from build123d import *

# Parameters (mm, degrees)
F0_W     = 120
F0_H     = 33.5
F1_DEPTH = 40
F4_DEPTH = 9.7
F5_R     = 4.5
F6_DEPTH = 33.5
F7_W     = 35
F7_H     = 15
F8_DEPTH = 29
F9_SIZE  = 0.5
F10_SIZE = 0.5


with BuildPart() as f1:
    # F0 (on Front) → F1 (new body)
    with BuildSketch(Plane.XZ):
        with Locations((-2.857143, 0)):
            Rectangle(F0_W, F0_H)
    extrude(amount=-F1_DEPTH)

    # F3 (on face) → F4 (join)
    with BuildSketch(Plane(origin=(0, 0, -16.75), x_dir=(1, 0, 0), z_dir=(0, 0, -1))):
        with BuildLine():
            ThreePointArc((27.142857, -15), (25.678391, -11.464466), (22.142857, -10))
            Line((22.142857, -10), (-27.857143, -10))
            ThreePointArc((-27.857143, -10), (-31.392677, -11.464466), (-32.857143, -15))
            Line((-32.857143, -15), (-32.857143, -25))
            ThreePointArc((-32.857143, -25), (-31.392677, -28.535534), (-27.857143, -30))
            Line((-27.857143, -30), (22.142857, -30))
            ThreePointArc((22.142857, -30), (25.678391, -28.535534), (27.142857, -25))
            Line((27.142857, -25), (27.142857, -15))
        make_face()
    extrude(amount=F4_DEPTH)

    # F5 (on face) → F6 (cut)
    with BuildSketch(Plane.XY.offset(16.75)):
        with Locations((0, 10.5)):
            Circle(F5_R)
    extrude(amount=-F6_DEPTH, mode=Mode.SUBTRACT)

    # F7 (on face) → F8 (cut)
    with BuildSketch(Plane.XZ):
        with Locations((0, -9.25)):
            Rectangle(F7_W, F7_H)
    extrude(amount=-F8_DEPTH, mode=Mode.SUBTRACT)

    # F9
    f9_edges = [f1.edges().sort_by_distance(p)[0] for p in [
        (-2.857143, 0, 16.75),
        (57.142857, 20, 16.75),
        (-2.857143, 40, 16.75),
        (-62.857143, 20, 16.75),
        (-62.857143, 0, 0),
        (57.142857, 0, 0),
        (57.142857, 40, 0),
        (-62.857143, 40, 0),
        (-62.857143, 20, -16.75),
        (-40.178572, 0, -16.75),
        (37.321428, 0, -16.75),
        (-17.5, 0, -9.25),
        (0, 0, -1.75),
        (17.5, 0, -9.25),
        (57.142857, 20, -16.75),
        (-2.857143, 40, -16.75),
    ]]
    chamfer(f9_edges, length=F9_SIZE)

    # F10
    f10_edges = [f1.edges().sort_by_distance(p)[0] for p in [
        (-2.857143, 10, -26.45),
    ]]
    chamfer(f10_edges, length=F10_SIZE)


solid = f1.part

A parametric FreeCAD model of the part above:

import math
import FreeCAD as App
import Part
import Sketcher
from FreeCAD import Vector


def edges_at(feature, points):
    """Names of the edges that pass closest to the given points."""
    edges = feature.Shape.Edges
    near = lambda p: min(range(len(edges)), key=lambda i: edges[i].distToShape(Part.Vertex(*p))[0])
    return sorted({f"Edge{near(p) + 1}" for p in points})

doc = App.newDocument("Part")
body = doc.addObject("PartDesign::Body", "Body")

sketch1 = body.newObject("Sketcher::SketchObject", "Sketch")
sketch1.AttachmentSupport = (doc.getObject("XZ_Plane"), [""])
sketch1.MapMode = "FlatFace"
sketch1.addGeometry([
    Part.LineSegment(Vector(-62.857143, 16.75, 0), Vector(-62.857143, -16.75, 0)),
    Part.LineSegment(Vector(-62.857143, -16.75, 0), Vector(57.142857, -16.75, 0)),
    Part.LineSegment(Vector(57.142857, -16.75, 0), Vector(57.142857, 16.75, 0)),
    Part.LineSegment(Vector(57.142857, 16.75, 0), Vector(-62.857143, 16.75, 0)),
], False)
sketch1.addConstraint([
    Sketcher.Constraint("Coincident", 0, 2, 1, 1),
    Sketcher.Constraint("Coincident", 1, 2, 2, 1),
    Sketcher.Constraint("Coincident", 2, 2, 3, 1),
    Sketcher.Constraint("Coincident", 3, 2, 0, 1),
    Sketcher.Constraint("Vertical", 0),
    Sketcher.Constraint("Horizontal", 1),
    Sketcher.Constraint("Vertical", 2),
    Sketcher.Constraint("Horizontal", 3),
    Sketcher.Constraint("DistanceX", 1, 1, 1, 2, 120.0),
    Sketcher.Constraint("DistanceY", 0, 2, 0, 1, 33.5),
    Sketcher.Constraint("DistanceY", 0, 2, -1, 1, 16.75),
    Sketcher.Constraint("DistanceX", 0, 2, -1, 1, 62.857143),
])
pad1 = body.newObject("PartDesign::Pad", "Pad")
pad1.Profile = sketch1
pad1.Length = 40
pad1.Reversed = True

sketch2 = body.newObject("Sketcher::SketchObject", "Sketch001")
sketch2.AttachmentSupport = (doc.getObject("XY_Plane"), [""])
sketch2.MapMode = "FlatFace"
sketch2.AttachmentOffset = App.Placement(Vector(0, 0, -16.75), App.Rotation())
sketch2.addGeometry([
    Part.ArcOfCircle(Part.Circle(Vector(22.142857, 15, 0), Vector(0, 0, 1), 5), math.radians(-90.000004), math.radians(0.000004)),
    Part.LineSegment(Vector(22.142857, 10, 0), Vector(-27.857143, 10, 0)),
    Part.ArcOfCircle(Part.Circle(Vector(-27.857143, 15, 0), Vector(0, 0, 1), 5), math.radians(179.999996), math.radians(270.000004)),
    Part.LineSegment(Vector(-32.857143, 15, 0), Vector(-32.857143, 25, 0)),
    Part.ArcOfCircle(Part.Circle(Vector(-27.857143, 25, 0), Vector(0, 0, 1), 5), math.radians(89.999996), math.radians(180.000004)),
    Part.LineSegment(Vector(-27.857143, 30, 0), Vector(22.142857, 30, 0)),
    Part.ArcOfCircle(Part.Circle(Vector(22.142857, 25, 0), Vector(0, 0, 1), 5), math.radians(-0.000004), math.radians(90.000004)),
    Part.LineSegment(Vector(27.142857, 25, 0), Vector(27.142857, 15, 0)),
], False)
sketch2.addConstraint([
    Sketcher.Constraint("Tangent", 0, 1, 1, 1),
    Sketcher.Constraint("Tangent", 1, 2, 2, 2),
    Sketcher.Constraint("Tangent", 2, 1, 3, 1),
    Sketcher.Constraint("Tangent", 3, 2, 4, 2),
    Sketcher.Constraint("Tangent", 4, 1, 5, 1),
    Sketcher.Constraint("Tangent", 5, 2, 6, 2),
    Sketcher.Constraint("Tangent", 6, 1, 7, 1),
    Sketcher.Constraint("Tangent", 7, 2, 0, 2),
    Sketcher.Constraint("Horizontal", 1),
    Sketcher.Constraint("Vertical", 3),
    Sketcher.Constraint("Horizontal", 5),
    Sketcher.Constraint("Vertical", 7),
    Sketcher.Constraint("Equal", 0, 2),
    Sketcher.Constraint("Equal", 2, 4),
    Sketcher.Constraint("Equal", 4, 6),
    Sketcher.Constraint("Radius", 0, 5.0),
    Sketcher.Constraint("DistanceX", 1, 2, 1, 1, 50.0),
    Sketcher.Constraint("DistanceY", 3, 1, 3, 2, 10.0),
    Sketcher.Constraint("DistanceY", -1, 1, 0, 3, 15.0),
    Sketcher.Constraint("DistanceX", -1, 1, 0, 3, 22.142857),
])
pad2 = body.newObject("PartDesign::Pad", "Pad001")
pad2.Profile = sketch2
pad2.Length = 9.7
pad2.Reversed = True

sketch3 = body.newObject("Sketcher::SketchObject", "Sketch002")
sketch3.AttachmentSupport = (doc.getObject("XY_Plane"), [""])
sketch3.MapMode = "FlatFace"
sketch3.AttachmentOffset = App.Placement(Vector(0, 0, 16.75), App.Rotation())
sketch3.addGeometry(Part.Circle(Vector(0, 10.5, 0), Vector(0, 0, 1), 4.5), False)
sketch3.addConstraint([
    Sketcher.Constraint("PointOnObject", 0, 3, -2),
    Sketcher.Constraint("Diameter", 0, 9.0),
    Sketcher.Constraint("DistanceY", -1, 1, 0, 3, 10.5),
])
pocket1 = body.newObject("PartDesign::Pocket", "Pocket")
pocket1.Profile = sketch3
pocket1.Length = 33.5

sketch4 = body.newObject("Sketcher::SketchObject", "Sketch003")
sketch4.AttachmentSupport = (doc.getObject("XZ_Plane"), [""])
sketch4.MapMode = "FlatFace"
sketch4.addGeometry([
    Part.LineSegment(Vector(-17.5, -1.75, 0), Vector(-17.5, -16.75, 0)),
    Part.LineSegment(Vector(-17.5, -16.75, 0), Vector(17.5, -16.75, 0)),
    Part.LineSegment(Vector(17.5, -16.75, 0), Vector(17.5, -1.75, 0)),
    Part.LineSegment(Vector(17.5, -1.75, 0), Vector(-17.5, -1.75, 0)),
], False)
sketch4.addConstraint([
    Sketcher.Constraint("Coincident", 0, 2, 1, 1),
    Sketcher.Constraint("Coincident", 1, 2, 2, 1),
    Sketcher.Constraint("Coincident", 2, 2, 3, 1),
    Sketcher.Constraint("Coincident", 3, 2, 0, 1),
    Sketcher.Constraint("Vertical", 0),
    Sketcher.Constraint("Horizontal", 1),
    Sketcher.Constraint("Vertical", 2),
    Sketcher.Constraint("Horizontal", 3),
    Sketcher.Constraint("DistanceX", 1, 1, 1, 2, 35.0),
    Sketcher.Constraint("DistanceY", 0, 2, 0, 1, 15.0),
    Sketcher.Constraint("DistanceX", 0, 2, -1, 1, 17.5),
    Sketcher.Constraint("DistanceY", 0, 2, -1, 1, 16.75),
])
pocket2 = body.newObject("PartDesign::Pocket", "Pocket001")
pocket2.Profile = sketch4
pocket2.Length = 29
doc.recompute()

chamfer = body.newObject("PartDesign::Chamfer", "Chamfer")
chamfer.Base = (pocket2, edges_at(pocket2, [
    (-2.857, 0, 16.75),
    (57.143, 20, 16.75),
    (-2.857, 40, 16.75),
    (-62.857, 20, 16.75),
    (-62.857, 0, 0),
    (57.143, 0, 0),
    (57.143, 40, 0),
    (-62.857, 40, 0),
    (-62.857, 20, -16.75),
    (-40.179, 0, -16.75),
    (37.321, 0, -16.75),
    (-17.5, 0, -9.25),
    (0, 0, -1.75),
    (17.5, 0, -9.25),
    (57.143, 20, -16.75),
    (-2.857, 40, -16.75),
]))
chamfer.Size = 0.5
doc.recompute()

chamfer2 = body.newObject("PartDesign::Chamfer", "Chamfer001")
chamfer2.Base = (chamfer, edges_at(chamfer, [(-2.857, 10, -26.45)]))
chamfer2.Size = 0.5

doc.recompute()
